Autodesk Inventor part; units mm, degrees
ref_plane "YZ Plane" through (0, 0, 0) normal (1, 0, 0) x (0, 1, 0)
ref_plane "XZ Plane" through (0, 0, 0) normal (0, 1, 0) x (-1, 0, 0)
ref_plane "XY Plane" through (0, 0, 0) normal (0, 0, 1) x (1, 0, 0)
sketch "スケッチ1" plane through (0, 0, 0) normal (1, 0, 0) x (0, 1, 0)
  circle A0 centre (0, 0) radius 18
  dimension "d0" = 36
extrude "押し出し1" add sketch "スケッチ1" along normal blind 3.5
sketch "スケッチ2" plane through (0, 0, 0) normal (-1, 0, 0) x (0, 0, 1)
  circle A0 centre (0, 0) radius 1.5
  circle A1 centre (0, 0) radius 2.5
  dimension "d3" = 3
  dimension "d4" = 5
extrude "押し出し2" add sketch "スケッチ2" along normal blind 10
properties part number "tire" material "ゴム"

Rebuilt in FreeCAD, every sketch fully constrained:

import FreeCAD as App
import Part
import Sketcher
from FreeCAD import Vector

doc = App.newDocument("Part")
body = doc.addObject("PartDesign::Body", "Body")

# Sketch on YZ plane
sketch1 = body.newObject("Sketcher::SketchObject", "Sketch")
sketch1.AttachmentSupport = (doc.getObject("YZ_Plane"), [""])
sketch1.MapMode = "FlatFace"
sketch1.addGeometry(Part.Circle(Vector(0, 0, 0), Vector(0, 0, 1), 18), False)
sketch1.addConstraint(Sketcher.Constraint("Coincident", 0, 3, -1, 1))
sketch1.addConstraint(Sketcher.Constraint("Diameter", 0, 36.0))
pad1 = body.newObject("PartDesign::Pad", "Pad")
pad1.Profile = sketch1
pad1.Length = 3.5

# Sketch on YZ plane
sketch2 = body.newObject("Sketcher::SketchObject", "Sketch001")
sketch2.AttachmentSupport = (doc.getObject("YZ_Plane"), [""])
sketch2.MapMode = "FlatFace"
sketch2.addGeometry(Part.Circle(Vector(0, 0, 0), Vector(0, 0, 1), 2.5), False)
sketch2.addGeometry(Part.Circle(Vector(0, 0, 0), Vector(0, 0, 1), 1.5), False)
sketch2.addConstraint(Sketcher.Constraint("Coincident", 0, 3, -1, 1))
sketch2.addConstraint(Sketcher.Constraint("Coincident", 1, 3, -1, 1))
sketch2.addConstraint(Sketcher.Constraint("Diameter", 0, 5.0))
sketch2.addConstraint(Sketcher.Constraint("Diameter", 1, 3.0))
pad2 = body.newObject("PartDesign::Pad", "Pad001")
pad2.Profile = sketch2
pad2.Length = 10
pad2.Reversed = True

doc.recompute()
